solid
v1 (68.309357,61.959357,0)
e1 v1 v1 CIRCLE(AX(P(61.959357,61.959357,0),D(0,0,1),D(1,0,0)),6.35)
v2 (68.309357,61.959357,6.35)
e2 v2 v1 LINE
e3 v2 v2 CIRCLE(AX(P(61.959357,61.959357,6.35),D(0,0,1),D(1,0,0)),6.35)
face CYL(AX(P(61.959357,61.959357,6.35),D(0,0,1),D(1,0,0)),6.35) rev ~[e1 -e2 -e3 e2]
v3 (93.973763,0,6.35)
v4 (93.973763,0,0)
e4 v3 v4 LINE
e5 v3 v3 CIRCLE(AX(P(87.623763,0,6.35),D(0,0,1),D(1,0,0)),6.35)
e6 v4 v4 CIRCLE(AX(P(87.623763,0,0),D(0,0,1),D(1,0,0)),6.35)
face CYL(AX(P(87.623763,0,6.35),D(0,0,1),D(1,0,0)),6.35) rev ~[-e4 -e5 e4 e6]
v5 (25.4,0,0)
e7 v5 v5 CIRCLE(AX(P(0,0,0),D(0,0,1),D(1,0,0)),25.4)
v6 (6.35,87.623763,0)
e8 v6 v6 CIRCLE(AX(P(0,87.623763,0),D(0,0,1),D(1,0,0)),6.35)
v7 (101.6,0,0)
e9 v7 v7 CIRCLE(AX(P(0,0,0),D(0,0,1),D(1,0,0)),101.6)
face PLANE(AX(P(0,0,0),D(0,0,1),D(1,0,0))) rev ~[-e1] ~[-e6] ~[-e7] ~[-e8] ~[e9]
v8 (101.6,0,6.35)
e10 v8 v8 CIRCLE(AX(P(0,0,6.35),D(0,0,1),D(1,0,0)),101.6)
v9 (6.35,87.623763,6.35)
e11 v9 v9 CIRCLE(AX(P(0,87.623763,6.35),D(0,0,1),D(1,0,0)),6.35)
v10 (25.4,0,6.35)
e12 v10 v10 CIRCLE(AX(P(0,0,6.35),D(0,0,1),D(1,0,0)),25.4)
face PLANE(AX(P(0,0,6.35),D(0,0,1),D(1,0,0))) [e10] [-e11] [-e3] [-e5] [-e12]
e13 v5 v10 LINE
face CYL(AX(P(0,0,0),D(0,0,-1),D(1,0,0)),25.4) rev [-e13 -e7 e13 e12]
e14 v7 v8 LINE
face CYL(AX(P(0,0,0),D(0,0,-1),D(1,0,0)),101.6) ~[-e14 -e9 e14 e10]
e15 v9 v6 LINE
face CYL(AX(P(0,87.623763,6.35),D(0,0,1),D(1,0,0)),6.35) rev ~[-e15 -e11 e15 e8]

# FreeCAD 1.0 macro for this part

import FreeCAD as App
import Part
import Sketcher
from FreeCAD import Vector
Q = App.Units.Quantity

doc = App.newDocument("Part")
params = doc.addObject("Spreadsheet::Sheet", "Params")
for row, (alias, value) in enumerate([
    ("sketch1_diameter", "8 in"),
    ("sketch1_diameter2", "2 in"),
    ("pad1_length", "0.25 in"),
    ("sketch2_diameter", "0.5 in"),
], start=1):
    params.set(f"A{row}", alias)
    params.set(f"B{row}", "=" + value)
    params.setAlias(f"B{row}", alias)

body = doc.addObject("PartDesign::Body", "Body")

sketch1 = doc.addObject("Sketcher::SketchObject", "Sketch")
body.addObject(sketch1)
sketch1.AttachmentSupport = (doc.XY_Plane, [""])
sketch1.MapMode = "FlatFace"
sketch1.addGeometry([
    Part.Circle(Vector(0, 0, 0), Vector(0, 0, 1), 102),
    Part.Circle(Vector(0, 0, 0), Vector(0, 0, 1), 25),
], False)
sketch1.addConstraint([
    Sketcher.Constraint("Coincident", 0, 3, -1, 1),
    Sketcher.Constraint("Coincident", 1, 3, -1, 1),
    Sketcher.Constraint("Diameter", 0, Q("8 in")),
    Sketcher.Constraint("Diameter", 1, Q("2 in")),
])
sketch1.setExpression("Constraints[2]", "Params.sketch1_diameter")
sketch1.setExpression("Constraints[3]", "Params.sketch1_diameter2")
pad1 = doc.addObject("PartDesign::Pad", "Pad")
body.addObject(pad1)
pad1.Profile = sketch1
pad1.setExpression("Length", "Params.pad1_length")

sketch2 = doc.addObject("Sketcher::SketchObject", "Sketch001")
body.addObject(sketch2)
sketch2.AttachmentSupport = (doc.XY_Plane, [""])
sketch2.MapMode = "FlatFace"
sketch2.AttachmentOffset = App.Placement(Vector(0, 0, 0.25 * 25.4), App.Rotation())
sketch2.addGeometry([
    Part.Circle(Vector(0, 88, 0), Vector(0, 0, 1), 6),
    Part.Circle(Vector(62, 62, 0), Vector(0, 0, 1), 6),
    Part.Circle(Vector(88, 0, 0), Vector(0, 0, 1), 6),
], False)
sketch2.addConstraint([
    Sketcher.Constraint("Equal", 0, 1),
    Sketcher.Constraint("Equal", 1, 2),
    Sketcher.Constraint("PointOnObject", 0, 3, -2),
    Sketcher.Constraint("PointOnObject", 2, 3, -1),
    Sketcher.Constraint("Diameter", 0, Q("0.5 in")),
    Sketcher.Constraint("DistanceY", -1, 1, 0, 3, 87.623763),
    Sketcher.Constraint("DistanceX", -1, 1, 1, 3, 61.959357),
    Sketcher.Constraint("DistanceY", -1, 1, 1, 3, 61.959357),
    Sketcher.Constraint("DistanceX", -1, 1, 2, 3, 87.623763),
])
sketch2.setExpression("Constraints[4]", "Params.sketch2_diameter")
pocket1 = doc.addObject("PartDesign::Pocket", "Pocket")
body.addObject(pocket1)
pocket1.Profile = sketch2
pocket1.Type = "ThroughAll"

doc.recompute()
